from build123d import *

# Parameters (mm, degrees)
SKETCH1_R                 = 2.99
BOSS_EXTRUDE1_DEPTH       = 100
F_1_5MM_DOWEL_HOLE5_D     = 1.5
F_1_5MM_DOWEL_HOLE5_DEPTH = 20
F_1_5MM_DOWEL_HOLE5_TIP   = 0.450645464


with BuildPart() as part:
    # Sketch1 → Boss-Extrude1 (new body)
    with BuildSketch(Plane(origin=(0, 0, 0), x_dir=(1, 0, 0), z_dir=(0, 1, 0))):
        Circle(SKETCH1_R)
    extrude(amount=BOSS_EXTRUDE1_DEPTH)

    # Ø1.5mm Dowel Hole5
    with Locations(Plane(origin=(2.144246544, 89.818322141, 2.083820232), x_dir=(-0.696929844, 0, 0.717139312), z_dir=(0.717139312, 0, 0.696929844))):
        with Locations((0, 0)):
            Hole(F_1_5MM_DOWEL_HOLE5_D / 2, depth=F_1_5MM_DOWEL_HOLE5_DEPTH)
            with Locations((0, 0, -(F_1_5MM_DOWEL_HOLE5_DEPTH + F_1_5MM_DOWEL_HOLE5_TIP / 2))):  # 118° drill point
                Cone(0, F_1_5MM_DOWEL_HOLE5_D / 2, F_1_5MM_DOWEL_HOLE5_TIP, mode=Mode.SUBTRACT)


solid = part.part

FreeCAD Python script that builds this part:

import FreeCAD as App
import Part
import Sketcher

V = App.Vector

doc = App.newDocument("Part")
body = doc.addObject("PartDesign::Body", "Body")

# Sketch on XZ plane
sketch1 = body.newObject("Sketcher::SketchObject", "Sketch")
sketch1.AttachmentSupport = (doc.getObject("XZ_Plane"), [""])
sketch1.MapMode = "FlatFace"
sketch1.addGeometry(Part.Circle(V(0, 0, 0), V(0, 0, 1), 3), False)
sketch1.addConstraint([
    Sketcher.Constraint("Coincident", 0, 3, -1, 1),
    Sketcher.Constraint("Diameter", 0, 5.98),
])
pad1 = body.newObject("PartDesign::Pad", "Pad")
pad1.Profile = sketch1
pad1.Length = 100
pad1.Reversed = True

# Sketch on an angled plane
sketch2 = body.newObject("Sketcher::SketchObject", "Sketch001")
sketch2.Placement = App.Placement(V(2.144247, 0, 2.08382), App.Rotation(V(-0.696929844, 0, 0.717139312), V(0, -1, 0), V(0.717139312, 0, 0.696929844), "ZXY"))
sketch2.addGeometry(Part.Circle(V(0, -89.8, 0), V(0, 0, 1), 0.8), False)
sketch2.addConstraint([
    Sketcher.Constraint("PointOnObject", 0, 3, -2),
    Sketcher.Constraint("Diameter", 0, 1.5),
    Sketcher.Constraint("DistanceY", 0, 3, -1, 1, 89.818322),
])
doc.recompute()
hole = body.newObject("PartDesign::Hole", "Hole")
hole.Profile = sketch2
hole.ThreadType = "None"
hole.Diameter = 1.5
hole.DepthType = "Dimension"
hole.Depth = 20
hole.DrillPoint = "Angled"
hole.DrillPointAngle = 118

doc.recompute()
